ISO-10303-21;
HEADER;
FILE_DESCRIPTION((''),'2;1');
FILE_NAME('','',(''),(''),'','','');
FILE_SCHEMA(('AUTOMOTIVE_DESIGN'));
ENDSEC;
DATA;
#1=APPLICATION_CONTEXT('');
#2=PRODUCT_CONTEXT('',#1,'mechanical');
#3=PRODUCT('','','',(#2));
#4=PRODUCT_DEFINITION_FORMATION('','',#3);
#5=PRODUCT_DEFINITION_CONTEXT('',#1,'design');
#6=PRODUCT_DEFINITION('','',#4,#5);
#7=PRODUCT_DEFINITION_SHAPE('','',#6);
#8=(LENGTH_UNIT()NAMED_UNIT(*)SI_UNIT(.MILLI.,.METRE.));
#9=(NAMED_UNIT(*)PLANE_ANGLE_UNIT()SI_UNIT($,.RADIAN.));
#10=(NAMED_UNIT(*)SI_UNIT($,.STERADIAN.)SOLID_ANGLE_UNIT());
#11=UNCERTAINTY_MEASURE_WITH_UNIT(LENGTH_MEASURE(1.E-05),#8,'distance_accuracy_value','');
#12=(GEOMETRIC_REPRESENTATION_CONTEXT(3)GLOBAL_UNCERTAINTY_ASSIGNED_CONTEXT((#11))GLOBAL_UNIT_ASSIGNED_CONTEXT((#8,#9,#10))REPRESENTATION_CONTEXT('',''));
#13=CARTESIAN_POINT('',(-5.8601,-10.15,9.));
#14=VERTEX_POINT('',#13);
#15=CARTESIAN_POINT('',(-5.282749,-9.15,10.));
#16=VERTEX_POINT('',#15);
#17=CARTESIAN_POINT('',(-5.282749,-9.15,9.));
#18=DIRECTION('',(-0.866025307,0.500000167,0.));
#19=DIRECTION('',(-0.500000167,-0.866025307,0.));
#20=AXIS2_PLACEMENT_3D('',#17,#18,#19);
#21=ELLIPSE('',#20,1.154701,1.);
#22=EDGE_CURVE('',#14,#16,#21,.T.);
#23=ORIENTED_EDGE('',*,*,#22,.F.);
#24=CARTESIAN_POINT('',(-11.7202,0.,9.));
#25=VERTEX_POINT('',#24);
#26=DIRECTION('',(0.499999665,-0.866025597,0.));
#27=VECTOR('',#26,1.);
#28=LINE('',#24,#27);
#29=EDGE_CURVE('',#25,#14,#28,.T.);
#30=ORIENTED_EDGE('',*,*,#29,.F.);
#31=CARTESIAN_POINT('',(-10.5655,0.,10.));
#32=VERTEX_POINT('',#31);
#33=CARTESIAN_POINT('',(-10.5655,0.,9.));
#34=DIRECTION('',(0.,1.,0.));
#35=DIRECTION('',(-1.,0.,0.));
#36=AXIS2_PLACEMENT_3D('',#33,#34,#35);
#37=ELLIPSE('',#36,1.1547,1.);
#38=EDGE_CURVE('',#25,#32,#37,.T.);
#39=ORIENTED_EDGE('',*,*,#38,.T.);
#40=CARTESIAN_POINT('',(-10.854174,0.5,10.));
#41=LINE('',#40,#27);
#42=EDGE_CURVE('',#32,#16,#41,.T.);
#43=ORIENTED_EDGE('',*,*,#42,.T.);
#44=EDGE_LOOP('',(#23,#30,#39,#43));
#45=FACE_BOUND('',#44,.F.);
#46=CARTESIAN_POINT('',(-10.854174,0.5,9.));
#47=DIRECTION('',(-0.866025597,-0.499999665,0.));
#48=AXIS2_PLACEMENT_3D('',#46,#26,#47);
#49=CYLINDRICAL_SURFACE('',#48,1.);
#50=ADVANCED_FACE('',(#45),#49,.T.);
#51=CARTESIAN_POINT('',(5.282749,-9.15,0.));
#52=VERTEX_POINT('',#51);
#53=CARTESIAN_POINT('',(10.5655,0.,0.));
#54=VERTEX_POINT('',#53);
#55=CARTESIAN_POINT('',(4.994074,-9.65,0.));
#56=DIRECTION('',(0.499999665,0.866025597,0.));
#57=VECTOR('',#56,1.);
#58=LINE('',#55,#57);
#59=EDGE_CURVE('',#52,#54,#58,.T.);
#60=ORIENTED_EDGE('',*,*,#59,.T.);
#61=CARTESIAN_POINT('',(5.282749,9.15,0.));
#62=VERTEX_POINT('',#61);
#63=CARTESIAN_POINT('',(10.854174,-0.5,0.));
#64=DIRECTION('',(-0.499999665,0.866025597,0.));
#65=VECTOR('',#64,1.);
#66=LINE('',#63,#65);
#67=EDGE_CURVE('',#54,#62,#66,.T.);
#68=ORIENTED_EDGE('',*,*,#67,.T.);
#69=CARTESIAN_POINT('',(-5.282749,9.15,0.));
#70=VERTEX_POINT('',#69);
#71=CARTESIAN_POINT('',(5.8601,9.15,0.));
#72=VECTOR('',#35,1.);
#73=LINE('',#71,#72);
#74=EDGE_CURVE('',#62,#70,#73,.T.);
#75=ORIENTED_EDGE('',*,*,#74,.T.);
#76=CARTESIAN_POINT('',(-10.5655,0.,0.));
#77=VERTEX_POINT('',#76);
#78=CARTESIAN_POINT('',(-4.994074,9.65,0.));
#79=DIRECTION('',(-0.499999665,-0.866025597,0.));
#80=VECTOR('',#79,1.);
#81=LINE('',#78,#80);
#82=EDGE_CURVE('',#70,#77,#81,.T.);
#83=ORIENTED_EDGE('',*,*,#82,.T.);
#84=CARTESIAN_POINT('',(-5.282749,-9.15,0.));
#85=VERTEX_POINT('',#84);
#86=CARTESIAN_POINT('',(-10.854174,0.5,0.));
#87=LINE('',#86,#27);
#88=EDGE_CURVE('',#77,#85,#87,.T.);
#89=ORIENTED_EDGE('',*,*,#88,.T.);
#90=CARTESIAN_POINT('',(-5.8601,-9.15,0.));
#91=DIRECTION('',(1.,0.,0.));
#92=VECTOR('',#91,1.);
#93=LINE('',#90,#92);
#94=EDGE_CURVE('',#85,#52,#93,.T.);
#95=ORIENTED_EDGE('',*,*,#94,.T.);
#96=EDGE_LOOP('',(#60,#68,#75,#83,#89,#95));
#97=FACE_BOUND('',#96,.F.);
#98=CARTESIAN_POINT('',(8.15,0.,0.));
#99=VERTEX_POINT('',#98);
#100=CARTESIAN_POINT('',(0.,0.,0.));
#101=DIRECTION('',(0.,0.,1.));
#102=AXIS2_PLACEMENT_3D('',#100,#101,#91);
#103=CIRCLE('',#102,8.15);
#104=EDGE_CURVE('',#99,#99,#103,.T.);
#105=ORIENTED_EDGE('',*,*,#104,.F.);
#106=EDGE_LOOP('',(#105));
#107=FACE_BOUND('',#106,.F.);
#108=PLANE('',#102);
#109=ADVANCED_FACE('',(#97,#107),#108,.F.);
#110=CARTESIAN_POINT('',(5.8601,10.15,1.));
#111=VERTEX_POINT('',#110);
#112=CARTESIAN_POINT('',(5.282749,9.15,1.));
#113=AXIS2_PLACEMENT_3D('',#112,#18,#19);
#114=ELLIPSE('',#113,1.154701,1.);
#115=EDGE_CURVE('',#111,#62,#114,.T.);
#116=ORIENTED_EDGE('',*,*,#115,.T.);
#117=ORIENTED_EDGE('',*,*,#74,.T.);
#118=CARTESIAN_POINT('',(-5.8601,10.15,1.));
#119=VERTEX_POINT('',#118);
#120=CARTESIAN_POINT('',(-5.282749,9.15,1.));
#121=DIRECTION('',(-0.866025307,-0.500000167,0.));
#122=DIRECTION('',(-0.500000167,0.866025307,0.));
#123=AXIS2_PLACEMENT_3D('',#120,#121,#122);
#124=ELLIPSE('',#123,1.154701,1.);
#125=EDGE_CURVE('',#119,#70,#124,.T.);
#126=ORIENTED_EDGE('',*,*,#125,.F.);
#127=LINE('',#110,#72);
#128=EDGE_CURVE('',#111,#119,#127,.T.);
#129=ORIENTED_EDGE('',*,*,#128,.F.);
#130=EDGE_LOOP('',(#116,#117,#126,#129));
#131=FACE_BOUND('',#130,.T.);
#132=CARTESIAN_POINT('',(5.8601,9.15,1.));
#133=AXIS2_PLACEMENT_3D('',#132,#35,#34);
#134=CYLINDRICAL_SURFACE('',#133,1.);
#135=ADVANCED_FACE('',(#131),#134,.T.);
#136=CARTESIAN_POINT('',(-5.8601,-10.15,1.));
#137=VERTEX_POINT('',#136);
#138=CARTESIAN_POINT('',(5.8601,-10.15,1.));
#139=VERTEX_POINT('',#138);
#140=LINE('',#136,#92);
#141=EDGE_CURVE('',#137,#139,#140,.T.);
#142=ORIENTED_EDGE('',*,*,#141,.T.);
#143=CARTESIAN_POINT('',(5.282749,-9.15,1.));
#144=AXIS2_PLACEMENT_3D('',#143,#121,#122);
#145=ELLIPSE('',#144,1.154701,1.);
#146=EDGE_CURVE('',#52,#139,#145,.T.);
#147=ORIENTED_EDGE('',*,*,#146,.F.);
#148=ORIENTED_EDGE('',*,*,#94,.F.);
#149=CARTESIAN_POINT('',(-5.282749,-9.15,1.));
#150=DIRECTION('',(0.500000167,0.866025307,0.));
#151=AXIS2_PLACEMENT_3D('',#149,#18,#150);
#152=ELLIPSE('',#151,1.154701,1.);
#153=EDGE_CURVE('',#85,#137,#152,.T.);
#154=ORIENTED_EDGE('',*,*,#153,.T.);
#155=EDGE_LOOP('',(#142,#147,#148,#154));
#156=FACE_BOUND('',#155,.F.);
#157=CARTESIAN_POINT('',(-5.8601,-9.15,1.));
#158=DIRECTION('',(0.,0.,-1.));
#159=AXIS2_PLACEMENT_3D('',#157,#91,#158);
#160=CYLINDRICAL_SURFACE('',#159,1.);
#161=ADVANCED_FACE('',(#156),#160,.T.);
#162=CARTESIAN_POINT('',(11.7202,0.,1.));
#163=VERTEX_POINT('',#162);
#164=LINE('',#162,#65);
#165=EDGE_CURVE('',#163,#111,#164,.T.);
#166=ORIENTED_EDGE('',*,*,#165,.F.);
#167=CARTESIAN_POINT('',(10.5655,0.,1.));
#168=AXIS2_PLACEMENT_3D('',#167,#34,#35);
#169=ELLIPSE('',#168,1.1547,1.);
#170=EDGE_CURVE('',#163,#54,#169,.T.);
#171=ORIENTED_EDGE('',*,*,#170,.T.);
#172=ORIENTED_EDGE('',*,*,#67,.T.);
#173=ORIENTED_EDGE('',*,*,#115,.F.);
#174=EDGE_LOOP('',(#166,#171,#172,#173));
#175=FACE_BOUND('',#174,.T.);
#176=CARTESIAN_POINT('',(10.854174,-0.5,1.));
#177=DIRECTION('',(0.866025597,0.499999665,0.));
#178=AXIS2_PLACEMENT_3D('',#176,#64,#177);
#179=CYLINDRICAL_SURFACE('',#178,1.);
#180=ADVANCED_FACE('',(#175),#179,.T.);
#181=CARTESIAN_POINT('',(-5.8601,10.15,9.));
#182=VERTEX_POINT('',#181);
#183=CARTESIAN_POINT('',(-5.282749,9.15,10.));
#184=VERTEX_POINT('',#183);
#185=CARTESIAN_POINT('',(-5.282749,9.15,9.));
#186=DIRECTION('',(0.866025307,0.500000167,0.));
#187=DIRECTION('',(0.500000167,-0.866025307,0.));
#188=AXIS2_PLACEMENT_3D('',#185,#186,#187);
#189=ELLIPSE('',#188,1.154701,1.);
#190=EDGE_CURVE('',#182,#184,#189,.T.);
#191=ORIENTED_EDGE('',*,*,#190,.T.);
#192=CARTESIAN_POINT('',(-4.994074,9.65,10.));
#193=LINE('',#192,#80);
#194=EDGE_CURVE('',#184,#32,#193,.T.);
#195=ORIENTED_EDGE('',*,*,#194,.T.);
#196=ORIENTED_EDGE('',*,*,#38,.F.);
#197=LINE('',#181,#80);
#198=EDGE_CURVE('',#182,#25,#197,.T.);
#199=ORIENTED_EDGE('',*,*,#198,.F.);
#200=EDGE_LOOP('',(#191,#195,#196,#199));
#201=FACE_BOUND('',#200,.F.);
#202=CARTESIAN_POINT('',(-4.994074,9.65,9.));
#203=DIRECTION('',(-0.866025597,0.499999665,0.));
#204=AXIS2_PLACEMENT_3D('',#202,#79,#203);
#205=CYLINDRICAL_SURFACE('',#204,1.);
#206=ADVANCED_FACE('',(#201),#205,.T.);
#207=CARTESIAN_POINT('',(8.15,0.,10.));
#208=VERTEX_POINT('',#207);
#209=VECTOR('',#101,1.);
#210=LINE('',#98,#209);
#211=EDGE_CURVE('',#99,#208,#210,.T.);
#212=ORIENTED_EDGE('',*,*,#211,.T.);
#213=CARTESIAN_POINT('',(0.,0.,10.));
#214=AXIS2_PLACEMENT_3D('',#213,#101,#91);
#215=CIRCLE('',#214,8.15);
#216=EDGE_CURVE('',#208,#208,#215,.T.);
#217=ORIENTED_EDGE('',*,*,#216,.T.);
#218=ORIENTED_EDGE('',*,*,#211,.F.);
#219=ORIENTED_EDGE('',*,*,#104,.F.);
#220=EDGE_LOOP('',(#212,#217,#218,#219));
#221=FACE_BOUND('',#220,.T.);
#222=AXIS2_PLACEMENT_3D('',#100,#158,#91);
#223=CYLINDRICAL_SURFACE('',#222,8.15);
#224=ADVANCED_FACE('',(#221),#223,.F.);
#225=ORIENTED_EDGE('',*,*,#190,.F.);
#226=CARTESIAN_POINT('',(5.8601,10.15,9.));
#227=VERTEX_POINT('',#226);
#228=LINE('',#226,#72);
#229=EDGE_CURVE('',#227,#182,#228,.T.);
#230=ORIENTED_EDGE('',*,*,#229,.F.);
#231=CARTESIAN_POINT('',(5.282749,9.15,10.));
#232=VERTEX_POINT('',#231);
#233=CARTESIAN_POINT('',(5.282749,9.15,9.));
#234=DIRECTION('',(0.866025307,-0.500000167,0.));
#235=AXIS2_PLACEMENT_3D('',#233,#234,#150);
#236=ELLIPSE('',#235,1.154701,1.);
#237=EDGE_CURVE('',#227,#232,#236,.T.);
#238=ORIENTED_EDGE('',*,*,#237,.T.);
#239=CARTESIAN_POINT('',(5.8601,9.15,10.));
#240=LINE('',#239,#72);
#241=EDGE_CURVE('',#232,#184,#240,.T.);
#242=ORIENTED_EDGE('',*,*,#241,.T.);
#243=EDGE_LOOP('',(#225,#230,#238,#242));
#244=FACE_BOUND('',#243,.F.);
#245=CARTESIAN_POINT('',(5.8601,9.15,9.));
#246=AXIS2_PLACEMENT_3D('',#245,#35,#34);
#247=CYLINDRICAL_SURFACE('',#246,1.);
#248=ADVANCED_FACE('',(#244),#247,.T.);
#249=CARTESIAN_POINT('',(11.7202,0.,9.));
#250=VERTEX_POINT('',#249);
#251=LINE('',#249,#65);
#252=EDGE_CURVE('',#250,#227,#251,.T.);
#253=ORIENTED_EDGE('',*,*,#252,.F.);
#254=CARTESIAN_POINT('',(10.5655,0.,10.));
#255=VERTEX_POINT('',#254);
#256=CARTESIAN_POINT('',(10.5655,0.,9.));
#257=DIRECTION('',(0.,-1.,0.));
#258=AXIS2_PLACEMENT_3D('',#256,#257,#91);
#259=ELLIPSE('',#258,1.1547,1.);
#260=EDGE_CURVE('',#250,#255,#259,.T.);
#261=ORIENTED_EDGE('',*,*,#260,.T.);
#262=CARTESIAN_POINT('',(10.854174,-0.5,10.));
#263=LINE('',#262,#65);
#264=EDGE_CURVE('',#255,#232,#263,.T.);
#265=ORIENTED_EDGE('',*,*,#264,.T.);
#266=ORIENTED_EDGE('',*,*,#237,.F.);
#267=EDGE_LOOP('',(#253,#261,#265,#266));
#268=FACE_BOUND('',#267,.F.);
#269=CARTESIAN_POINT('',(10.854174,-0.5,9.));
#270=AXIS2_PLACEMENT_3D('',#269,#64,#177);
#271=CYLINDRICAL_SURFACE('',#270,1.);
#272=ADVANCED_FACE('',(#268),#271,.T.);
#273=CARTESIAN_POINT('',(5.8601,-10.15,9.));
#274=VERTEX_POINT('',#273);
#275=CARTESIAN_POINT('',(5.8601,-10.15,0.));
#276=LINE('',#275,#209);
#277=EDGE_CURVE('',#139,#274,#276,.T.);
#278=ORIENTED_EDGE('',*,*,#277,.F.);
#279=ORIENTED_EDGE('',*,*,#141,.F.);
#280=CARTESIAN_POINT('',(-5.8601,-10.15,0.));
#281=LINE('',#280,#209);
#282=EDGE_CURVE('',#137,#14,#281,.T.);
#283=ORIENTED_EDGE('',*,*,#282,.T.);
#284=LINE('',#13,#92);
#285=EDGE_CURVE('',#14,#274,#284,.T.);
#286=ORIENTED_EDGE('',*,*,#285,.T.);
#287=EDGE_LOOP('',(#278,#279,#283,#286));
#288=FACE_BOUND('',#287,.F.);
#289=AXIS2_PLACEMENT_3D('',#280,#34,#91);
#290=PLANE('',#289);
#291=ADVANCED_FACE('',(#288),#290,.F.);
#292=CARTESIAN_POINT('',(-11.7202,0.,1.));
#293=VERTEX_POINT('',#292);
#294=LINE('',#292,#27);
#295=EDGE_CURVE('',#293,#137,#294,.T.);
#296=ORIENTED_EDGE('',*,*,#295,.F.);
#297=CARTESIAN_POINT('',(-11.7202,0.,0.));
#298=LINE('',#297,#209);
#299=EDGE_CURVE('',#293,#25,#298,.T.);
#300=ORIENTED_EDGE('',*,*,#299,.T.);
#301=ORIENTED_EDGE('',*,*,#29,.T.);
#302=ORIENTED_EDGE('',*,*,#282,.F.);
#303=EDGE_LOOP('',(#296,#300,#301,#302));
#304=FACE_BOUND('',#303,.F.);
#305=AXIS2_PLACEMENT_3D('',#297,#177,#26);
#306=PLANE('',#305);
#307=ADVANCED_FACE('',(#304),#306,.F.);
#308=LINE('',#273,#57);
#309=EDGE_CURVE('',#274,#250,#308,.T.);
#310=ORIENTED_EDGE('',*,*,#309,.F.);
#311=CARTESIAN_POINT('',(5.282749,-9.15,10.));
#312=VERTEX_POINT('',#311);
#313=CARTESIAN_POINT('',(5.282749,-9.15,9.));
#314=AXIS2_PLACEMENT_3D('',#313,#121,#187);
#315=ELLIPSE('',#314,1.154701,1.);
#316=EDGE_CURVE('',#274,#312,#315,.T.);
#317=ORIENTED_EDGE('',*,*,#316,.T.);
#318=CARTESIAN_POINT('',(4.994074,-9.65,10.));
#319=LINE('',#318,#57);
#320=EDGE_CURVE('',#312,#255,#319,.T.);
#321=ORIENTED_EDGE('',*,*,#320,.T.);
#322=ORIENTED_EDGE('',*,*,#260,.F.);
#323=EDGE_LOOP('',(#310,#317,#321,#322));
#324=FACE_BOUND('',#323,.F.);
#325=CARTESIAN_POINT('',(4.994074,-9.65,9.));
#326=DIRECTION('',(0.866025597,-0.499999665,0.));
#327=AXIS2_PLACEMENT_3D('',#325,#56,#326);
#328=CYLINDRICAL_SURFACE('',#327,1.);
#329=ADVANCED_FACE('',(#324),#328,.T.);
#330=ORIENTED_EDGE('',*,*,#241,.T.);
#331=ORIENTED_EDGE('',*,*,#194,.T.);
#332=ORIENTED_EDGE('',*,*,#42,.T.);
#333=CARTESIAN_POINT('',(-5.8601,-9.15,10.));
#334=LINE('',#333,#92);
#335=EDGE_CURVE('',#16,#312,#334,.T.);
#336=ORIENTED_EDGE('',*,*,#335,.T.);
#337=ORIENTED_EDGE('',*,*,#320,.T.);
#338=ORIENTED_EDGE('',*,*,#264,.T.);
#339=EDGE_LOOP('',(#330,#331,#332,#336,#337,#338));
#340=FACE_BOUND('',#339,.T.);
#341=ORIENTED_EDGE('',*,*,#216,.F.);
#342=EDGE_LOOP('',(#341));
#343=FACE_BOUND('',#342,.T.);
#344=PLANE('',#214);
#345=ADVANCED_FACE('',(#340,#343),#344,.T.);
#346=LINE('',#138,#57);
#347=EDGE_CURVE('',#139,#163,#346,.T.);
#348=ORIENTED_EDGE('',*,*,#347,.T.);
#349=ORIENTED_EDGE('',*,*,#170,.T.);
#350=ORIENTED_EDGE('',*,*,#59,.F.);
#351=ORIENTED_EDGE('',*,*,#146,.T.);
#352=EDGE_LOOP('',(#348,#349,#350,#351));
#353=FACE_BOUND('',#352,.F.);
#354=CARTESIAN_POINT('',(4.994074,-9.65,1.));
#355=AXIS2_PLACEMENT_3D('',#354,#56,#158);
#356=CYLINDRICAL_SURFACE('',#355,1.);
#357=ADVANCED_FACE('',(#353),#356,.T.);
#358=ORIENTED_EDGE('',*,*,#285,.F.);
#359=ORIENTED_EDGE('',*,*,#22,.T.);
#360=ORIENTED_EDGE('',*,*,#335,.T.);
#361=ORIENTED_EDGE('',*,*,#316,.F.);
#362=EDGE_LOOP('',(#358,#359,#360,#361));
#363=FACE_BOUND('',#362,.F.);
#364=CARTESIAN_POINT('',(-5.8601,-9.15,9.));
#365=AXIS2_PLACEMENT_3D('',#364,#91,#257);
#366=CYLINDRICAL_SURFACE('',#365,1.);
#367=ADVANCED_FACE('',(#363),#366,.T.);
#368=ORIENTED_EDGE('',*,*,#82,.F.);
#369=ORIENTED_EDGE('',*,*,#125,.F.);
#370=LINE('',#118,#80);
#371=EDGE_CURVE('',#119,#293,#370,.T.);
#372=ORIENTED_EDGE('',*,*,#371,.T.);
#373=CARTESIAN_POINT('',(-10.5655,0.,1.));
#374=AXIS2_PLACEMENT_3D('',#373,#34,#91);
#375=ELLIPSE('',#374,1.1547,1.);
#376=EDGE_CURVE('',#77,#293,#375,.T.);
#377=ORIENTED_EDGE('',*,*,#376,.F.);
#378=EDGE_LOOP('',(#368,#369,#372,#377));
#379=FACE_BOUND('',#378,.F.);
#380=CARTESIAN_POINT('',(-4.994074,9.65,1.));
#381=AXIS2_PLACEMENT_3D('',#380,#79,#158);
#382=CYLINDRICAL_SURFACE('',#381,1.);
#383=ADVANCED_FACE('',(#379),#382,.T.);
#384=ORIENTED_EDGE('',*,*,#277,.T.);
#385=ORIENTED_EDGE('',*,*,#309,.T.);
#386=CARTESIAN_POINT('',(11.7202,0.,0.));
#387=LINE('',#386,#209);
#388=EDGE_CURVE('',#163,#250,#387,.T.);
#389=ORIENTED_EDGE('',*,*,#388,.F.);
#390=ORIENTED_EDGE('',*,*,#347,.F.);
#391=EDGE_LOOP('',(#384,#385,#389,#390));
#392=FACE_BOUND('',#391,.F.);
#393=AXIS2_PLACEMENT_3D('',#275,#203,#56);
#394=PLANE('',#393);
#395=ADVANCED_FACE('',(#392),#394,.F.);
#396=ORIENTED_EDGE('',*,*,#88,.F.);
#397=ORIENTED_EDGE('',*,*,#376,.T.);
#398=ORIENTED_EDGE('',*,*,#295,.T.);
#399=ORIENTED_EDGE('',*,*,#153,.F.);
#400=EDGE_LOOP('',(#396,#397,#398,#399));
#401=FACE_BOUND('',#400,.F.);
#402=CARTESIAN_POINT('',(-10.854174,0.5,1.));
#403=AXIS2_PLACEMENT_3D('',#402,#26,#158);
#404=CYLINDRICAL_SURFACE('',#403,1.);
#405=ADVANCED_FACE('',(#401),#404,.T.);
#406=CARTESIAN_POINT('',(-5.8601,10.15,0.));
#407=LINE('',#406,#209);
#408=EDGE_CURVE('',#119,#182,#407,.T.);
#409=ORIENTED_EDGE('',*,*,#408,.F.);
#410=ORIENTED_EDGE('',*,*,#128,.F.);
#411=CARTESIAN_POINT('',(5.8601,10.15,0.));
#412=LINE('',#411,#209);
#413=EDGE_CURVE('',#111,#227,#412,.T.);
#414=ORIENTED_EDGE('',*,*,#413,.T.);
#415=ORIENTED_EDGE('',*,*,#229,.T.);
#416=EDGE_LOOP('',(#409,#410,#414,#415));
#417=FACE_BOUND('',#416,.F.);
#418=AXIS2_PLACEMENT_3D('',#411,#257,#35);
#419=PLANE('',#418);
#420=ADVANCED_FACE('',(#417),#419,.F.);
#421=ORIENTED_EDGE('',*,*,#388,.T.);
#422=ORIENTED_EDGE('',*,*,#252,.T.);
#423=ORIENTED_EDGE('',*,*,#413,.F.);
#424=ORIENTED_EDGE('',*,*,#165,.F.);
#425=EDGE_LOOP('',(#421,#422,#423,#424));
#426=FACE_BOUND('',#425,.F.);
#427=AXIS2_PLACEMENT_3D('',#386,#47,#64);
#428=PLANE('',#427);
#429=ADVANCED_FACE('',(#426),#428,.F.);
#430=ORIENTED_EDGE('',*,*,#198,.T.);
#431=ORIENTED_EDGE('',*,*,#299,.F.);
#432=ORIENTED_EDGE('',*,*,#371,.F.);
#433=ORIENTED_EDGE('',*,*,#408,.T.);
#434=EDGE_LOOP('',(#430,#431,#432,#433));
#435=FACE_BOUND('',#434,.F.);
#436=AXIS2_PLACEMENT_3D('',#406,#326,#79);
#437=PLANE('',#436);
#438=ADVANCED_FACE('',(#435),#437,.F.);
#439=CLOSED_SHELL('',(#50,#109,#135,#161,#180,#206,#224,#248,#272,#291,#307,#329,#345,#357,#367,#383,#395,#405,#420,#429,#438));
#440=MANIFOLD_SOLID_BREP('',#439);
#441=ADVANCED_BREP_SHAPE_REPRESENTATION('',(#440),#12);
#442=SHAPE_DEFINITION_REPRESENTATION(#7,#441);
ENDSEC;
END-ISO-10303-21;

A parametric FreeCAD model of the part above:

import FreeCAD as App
import Part
import Sketcher
from FreeCAD import Vector
Q = App.Units.Quantity


def edges_at(feature, points):
    """Names of the edges that pass closest to the given points."""
    edges = feature.Shape.Edges
    near = lambda p: min(range(len(edges)), key=lambda i: edges[i].distToShape(Part.Vertex(*p))[0])
    return sorted({f"Edge{near(p) + 1}" for p in points})

doc = App.newDocument("Part")
body = doc.addObject("PartDesign::Body", "Body")

# Sketch on XY plane
sketch1 = doc.addObject("Sketcher::SketchObject", "Sketch")
body.addObject(sketch1)
sketch1.AttachmentSupport = (doc.XY_Plane, [""])
sketch1.MapMode = "FlatFace"
sketch1.addGeometry([
    Part.LineSegment(Vector(6, 10, 0), Vector(-6, 10, 0)),  # 0
    Part.LineSegment(Vector(-6, 10, 0), Vector(-12, 0, 0)),  # 1
    Part.LineSegment(Vector(-12, 0, 0), Vector(-6, -10, 0)),  # 2
    Part.LineSegment(Vector(-6, -10, 0), Vector(6, -10, 0)),  # 3
    Part.LineSegment(Vector(6, -10, 0), Vector(12, 0, 0)),  # 4
    Part.LineSegment(Vector(12, 0, 0), Vector(6, 10, 0)),  # 5
    Part.Circle(Vector(0, 0, 0), Vector(0, 0, 1), 8),  # 6
], False)
sketch1.addConstraint([
    Sketcher.Constraint("Coincident", 0, 2, 1, 1),
    Sketcher.Constraint("Coincident", 1, 2, 2, 1),
    Sketcher.Constraint("Coincident", 2, 2, 3, 1),
    Sketcher.Constraint("Coincident", 3, 2, 4, 1),
    Sketcher.Constraint("Coincident", 4, 2, 5, 1),
    Sketcher.Constraint("Coincident", 5, 2, 0, 1),
    Sketcher.Constraint("Horizontal", 0),
    Sketcher.Constraint("Horizontal", 3),
    Sketcher.Constraint("Coincident", 6, 3, -1, 1),
    Sketcher.Constraint("Symmetric", 0, 2, 3, 2, -1, 1),
    Sketcher.Constraint("Symmetric", 1, 2, 4, 2, -1, 1),
    Sketcher.Constraint("PointOnObject", 1, 2, -1),
    Sketcher.Constraint("Parallel", 2, 5),
    Sketcher.Constraint("Vertical", 0, 2, 2, 2),
    Sketcher.Constraint("Diameter", 6, 16.3),
    Sketcher.Constraint("Angle", 1, Q("-120 deg")),
    Sketcher.Constraint("DistanceY", 2, 2, 0, 2, 20.3),
    Sketcher.Constraint("DistanceX", 0, 2, -1, 1, 5.86),
])
pad1 = doc.addObject("PartDesign::Pad", "Pad")
body.addObject(pad1)
pad1.Profile = sketch1
pad1.Length = 10
doc.recompute()

fillet = doc.addObject("PartDesign::Fillet", "Fillet")
body.addObject(fillet)
fillet.Base = (pad1, edges_at(pad1, [
    (-8.79, 5.075, 10),
    (-8.79, -5.075, 10),
    (0, -10.15, 10),
    (8.79, -5.075, 10),
    (8.79, 5.075, 10),
    (0, 10.15, 10),
]))
fillet.Radius = 1
doc.recompute()

fillet2 = doc.addObject("PartDesign::Fillet", "Fillet001")
body.addObject(fillet2)
fillet2.Base = (fillet, edges_at(fillet, [
    (0, 10.15, 0),
    (8.79, 5.075, 0),
    (8.79, -5.075, 0),
    (0, -10.15, 0),
    (-8.79, -5.075, 0),
    (-8.79, 5.075, 0),
]))
fillet2.Radius = 1

doc.recompute()
